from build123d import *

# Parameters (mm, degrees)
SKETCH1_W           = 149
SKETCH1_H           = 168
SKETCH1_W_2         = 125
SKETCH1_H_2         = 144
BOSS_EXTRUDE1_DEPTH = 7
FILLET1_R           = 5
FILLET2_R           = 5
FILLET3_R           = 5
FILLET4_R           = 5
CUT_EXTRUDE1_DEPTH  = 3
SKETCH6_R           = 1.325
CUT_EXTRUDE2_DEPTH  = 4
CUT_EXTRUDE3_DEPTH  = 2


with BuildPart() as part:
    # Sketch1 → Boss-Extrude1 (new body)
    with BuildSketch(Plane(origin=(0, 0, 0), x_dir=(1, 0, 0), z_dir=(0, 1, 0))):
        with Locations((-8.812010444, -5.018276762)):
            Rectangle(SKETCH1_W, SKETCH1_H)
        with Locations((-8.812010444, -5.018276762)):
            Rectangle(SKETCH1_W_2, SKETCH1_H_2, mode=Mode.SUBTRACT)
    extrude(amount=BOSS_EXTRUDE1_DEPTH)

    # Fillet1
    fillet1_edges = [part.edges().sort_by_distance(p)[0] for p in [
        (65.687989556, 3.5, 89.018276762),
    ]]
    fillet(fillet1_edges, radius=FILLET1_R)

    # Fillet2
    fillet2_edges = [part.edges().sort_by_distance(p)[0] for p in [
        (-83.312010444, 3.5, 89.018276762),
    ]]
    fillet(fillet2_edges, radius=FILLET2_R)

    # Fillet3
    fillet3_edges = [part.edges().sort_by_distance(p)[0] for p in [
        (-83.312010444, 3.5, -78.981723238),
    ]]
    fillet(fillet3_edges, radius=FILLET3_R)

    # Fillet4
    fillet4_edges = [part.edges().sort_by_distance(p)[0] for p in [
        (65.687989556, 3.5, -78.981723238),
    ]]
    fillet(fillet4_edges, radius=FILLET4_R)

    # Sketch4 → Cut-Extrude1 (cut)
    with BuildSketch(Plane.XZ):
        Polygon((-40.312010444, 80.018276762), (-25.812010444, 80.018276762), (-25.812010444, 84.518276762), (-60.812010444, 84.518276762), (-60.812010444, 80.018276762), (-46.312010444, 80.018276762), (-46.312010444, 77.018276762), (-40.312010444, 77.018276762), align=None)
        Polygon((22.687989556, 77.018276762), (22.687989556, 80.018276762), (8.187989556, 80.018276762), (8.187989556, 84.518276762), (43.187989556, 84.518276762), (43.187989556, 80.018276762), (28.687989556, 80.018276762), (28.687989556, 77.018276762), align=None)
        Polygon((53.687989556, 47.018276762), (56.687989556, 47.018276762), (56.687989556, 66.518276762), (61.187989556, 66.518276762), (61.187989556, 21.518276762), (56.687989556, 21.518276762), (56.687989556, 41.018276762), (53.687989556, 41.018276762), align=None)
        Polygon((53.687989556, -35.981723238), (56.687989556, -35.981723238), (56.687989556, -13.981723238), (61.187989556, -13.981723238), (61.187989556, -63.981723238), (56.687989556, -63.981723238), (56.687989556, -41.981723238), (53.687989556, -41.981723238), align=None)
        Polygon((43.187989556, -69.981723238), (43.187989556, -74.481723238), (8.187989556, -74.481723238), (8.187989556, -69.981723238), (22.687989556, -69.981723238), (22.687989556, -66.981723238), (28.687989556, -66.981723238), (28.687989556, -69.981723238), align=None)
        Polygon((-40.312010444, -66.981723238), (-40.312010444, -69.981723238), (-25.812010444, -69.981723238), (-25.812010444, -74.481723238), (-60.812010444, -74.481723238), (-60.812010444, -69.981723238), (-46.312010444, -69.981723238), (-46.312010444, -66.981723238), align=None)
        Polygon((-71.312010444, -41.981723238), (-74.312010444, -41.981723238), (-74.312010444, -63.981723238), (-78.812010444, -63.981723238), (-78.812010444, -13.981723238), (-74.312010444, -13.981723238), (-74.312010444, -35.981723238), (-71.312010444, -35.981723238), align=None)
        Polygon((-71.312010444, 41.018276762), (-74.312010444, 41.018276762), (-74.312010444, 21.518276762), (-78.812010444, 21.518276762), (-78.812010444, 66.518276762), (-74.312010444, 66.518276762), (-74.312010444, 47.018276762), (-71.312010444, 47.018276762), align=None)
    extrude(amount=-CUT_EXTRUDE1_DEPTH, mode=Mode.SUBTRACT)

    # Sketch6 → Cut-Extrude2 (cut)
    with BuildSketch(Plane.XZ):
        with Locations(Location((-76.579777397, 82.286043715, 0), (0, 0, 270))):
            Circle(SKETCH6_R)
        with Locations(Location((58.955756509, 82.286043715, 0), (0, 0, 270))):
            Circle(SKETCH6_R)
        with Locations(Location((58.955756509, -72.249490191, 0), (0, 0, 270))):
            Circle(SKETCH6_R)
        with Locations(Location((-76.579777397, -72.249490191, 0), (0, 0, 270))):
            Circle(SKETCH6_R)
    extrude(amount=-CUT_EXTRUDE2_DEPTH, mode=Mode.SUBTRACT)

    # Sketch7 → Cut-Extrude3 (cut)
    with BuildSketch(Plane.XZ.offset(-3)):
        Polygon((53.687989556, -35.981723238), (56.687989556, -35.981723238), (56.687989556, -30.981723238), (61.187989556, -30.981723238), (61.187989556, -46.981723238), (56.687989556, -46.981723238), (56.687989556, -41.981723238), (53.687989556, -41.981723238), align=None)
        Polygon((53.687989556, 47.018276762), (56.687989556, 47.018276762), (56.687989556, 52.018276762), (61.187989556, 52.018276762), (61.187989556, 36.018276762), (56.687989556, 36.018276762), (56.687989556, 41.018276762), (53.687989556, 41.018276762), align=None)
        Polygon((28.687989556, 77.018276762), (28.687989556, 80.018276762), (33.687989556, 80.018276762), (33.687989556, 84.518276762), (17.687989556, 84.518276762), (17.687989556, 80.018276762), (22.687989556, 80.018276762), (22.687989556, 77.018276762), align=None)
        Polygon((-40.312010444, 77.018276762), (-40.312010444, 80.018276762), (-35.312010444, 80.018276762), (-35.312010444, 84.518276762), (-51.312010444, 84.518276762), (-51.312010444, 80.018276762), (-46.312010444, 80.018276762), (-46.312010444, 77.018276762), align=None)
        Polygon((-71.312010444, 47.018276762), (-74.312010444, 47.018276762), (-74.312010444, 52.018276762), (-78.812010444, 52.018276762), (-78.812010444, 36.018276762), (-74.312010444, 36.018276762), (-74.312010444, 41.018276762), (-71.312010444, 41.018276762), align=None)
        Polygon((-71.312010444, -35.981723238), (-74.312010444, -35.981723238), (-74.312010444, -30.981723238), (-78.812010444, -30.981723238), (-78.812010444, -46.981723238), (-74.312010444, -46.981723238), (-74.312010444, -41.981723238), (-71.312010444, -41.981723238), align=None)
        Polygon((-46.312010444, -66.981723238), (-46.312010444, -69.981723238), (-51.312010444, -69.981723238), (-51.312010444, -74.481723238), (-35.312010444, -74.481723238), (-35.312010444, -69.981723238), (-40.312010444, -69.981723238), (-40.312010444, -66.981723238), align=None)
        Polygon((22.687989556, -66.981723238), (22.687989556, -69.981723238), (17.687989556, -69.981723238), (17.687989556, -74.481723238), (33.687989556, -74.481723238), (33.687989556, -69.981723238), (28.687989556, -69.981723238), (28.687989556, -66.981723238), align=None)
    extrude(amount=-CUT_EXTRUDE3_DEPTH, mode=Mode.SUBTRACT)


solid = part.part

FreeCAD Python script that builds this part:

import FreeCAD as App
import Part
import Sketcher


def edges_at(feature, points):
    """Names of the edges that pass closest to the given points."""
    edges = feature.Shape.Edges
    near = lambda p: min(range(len(edges)), key=lambda i: edges[i].distToShape(Part.Vertex(*p))[0])
    return sorted({f"Edge{near(p) + 1}" for p in points})


def add_polygon(sketch, points):
    """Adds a closed chain of lines whose ends are joined by coincident constraints."""
    first, n = sketch.GeometryCount, len(points)
    for a, b in zip(points, points[1:] + points[:1]):
        sketch.addGeometry(Part.LineSegment(App.Vector(*a, 0), App.Vector(*b, 0)), False)
    for i in range(n):
        sketch.addConstraint(Sketcher.Constraint("Coincident", first + i, 2, first + (i + 1) % n, 1))

doc = App.newDocument("Part")
params = doc.addObject("Spreadsheet::Sheet", "Params")
for row, (alias, value) in enumerate([
    ("sketch1_width", "149 mm"),
    ("sketch1_width2", "125 mm"),
    ("sketch1_height", "168 mm"),
    ("sketch1_height2", "144 mm"),
    ("pad1_length", "7 mm"),
    ("fillet_radius", "5 mm"),
    ("fillet2_radius", "5 mm"),
    ("fillet3_radius", "5 mm"),
    ("fillet4_radius", "5 mm"),
    ("sketch2_width", "35 mm"),
    ("sketch2_width2", "6 mm"),
    ("sketch2_width3", "3 mm"),
    ("sketch2_height", "45 mm"),
    ("sketch2_height2", "22 mm"),
    ("pocket1_length", "3 mm"),
    ("sketch3_diameter", "2.65 mm"),
    ("pocket2_length", "4 mm"),
    ("sketch4_width", "3 mm"),
    ("sketch4_width2", "5 mm"),
    ("sketch4_width3", "16 mm"),
    ("sketch4_width4", "4.5 mm"),
    ("pocket3_length", "2 mm"),
], start=1):
    params.set(f"A{row}", alias)
    params.set(f"B{row}", "=" + value)
    params.setAlias(f"B{row}", alias)

body = doc.addObject("PartDesign::Body", "Body")

sketch1 = body.newObject("Sketcher::SketchObject", "Sketch")
sketch1.AttachmentSupport = (doc.getObject("XZ_Plane"), [""])
sketch1.MapMode = "FlatFace"
add_polygon(sketch1, [(-83, -79), (-83, 89), (66, 89), (66, -79)])
add_polygon(sketch1, [(54, 77), (-71, 77), (-71, -67), (54, -67)])
sketch1.addConstraint([
    Sketcher.Constraint("Vertical", 0),
    Sketcher.Constraint("Horizontal", 1),
    Sketcher.Constraint("Vertical", 2),
    Sketcher.Constraint("Horizontal", 3),
    Sketcher.Constraint("Horizontal", 4),
    Sketcher.Constraint("Vertical", 5),
    Sketcher.Constraint("Horizontal", 6),
    Sketcher.Constraint("Vertical", 7),
    Sketcher.Constraint("DistanceX", 1, 1, 1, 2, 149.0),
    Sketcher.Constraint("DistanceX", 4, 2, 4, 1, 125.0),
    Sketcher.Constraint("DistanceY", 0, 1, 0, 2, 168.0),
    Sketcher.Constraint("DistanceY", 5, 2, 5, 1, 144.0),
    Sketcher.Constraint("DistanceX", 0, 2, 4, 2, 12.0),
    Sketcher.Constraint("DistanceY", 4, 2, 0, 2, 12.0),
    Sketcher.Constraint("DistanceX", 0, 2, -1, 1, 83.31201),
    Sketcher.Constraint("DistanceY", -1, 1, 0, 2, 89.018277),
])
sketch1.setExpression("Constraints[16]", "Params.sketch1_width")
sketch1.setExpression("Constraints[17]", "Params.sketch1_width2")
sketch1.setExpression("Constraints[18]", "Params.sketch1_height")
sketch1.setExpression("Constraints[19]", "Params.sketch1_height2")
pad1 = body.newObject("PartDesign::Pad", "Pad")
pad1.Profile = sketch1
pad1.setExpression("Length", "Params.pad1_length")
pad1.Reversed = True
doc.recompute()

fillet = body.newObject("PartDesign::Fillet", "Fillet")
fillet.Base = (pad1, edges_at(pad1, [(65.688, 3.5, 89.018)]))
fillet.setExpression("Radius", "Params.fillet_radius")
doc.recompute()

fillet2 = body.newObject("PartDesign::Fillet", "Fillet001")
fillet2.Base = (fillet, edges_at(fillet, [(-83.312, 3.5, 89.018)]))
fillet2.setExpression("Radius", "Params.fillet2_radius")
doc.recompute()

fillet3 = body.newObject("PartDesign::Fillet", "Fillet002")
fillet3.Base = (fillet2, edges_at(fillet2, [(-83.312, 3.5, -78.982)]))
fillet3.setExpression("Radius", "Params.fillet3_radius")
doc.recompute()

fillet4 = body.newObject("PartDesign::Fillet", "Fillet003")
fillet4.Base = (fillet3, edges_at(fillet3, [(65.688, 3.5, -78.982)]))
fillet4.setExpression("Radius", "Params.fillet4_radius")

sketch2 = body.newObject("Sketcher::SketchObject", "Sketch001")
sketch2.AttachmentSupport = (doc.getObject("XZ_Plane"), [""])
sketch2.MapMode = "FlatFace"
add_polygon(sketch2, [(-40.3, 80), (-25.8, 80), (-25.8, 84.5), (-60.8, 84.5), (-60.8, 80), (-46.3, 80), (-46.3, 77), (-40.3, 77)])
add_polygon(sketch2, [(22.7, 80), (22.7, 77), (28.7, 77), (28.7, 80), (43.2, 80), (43.2, 84.5), (8.2, 84.5), (8.2, 80)])
add_polygon(sketch2, [(56.7, 47), (53.7, 47), (53.7, 41), (56.7, 41), (56.7, 21.5), (61.2, 21.5), (61.2, 66.5), (56.7, 66.5)])
add_polygon(sketch2, [(56.7, -36), (53.7, -36), (53.7, -42), (56.7, -42), (56.7, -64), (61.2, -64), (61.2, -14), (56.7, -14)])
add_polygon(sketch2, [(43.2, -74.5), (43.2, -70), (28.7, -70), (28.7, -67), (22.7, -67), (22.7, -70), (8.2, -70), (8.2, -74.5)])
add_polygon(sketch2, [(-40.3, -70), (-40.3, -67), (-46.3, -67), (-46.3, -70), (-60.8, -70), (-60.8, -74.5), (-25.8, -74.5), (-25.8, -70)])
add_polygon(sketch2, [(-74.3, -42), (-71.3, -42), (-71.3, -36), (-74.3, -36), (-74.3, -14), (-78.8, -14), (-78.8, -64), (-74.3, -64)])
add_polygon(sketch2, [(-74.3, 41), (-71.3, 41), (-71.3, 47), (-74.3, 47), (-74.3, 66.5), (-78.8, 66.5), (-78.8, 21.5), (-74.3, 21.5)])
sketch2.addConstraint([
    Sketcher.Constraint("Horizontal", 0),
    Sketcher.Constraint("Vertical", 1),
    Sketcher.Constraint("Horizontal", 2),
    Sketcher.Constraint("Vertical", 3),
    Sketcher.Constraint("Horizontal", 4),
    Sketcher.Constraint("Vertical", 5),
    Sketcher.Constraint("Horizontal", 6),
    Sketcher.Constraint("Vertical", 7),
    Sketcher.Constraint("Vertical", 8),
    Sketcher.Constraint("Horizontal", 9),
    Sketcher.Constraint("Vertical", 10),
    Sketcher.Constraint("Horizontal", 11),
    Sketcher.Constraint("Vertical", 12),
    Sketcher.Constraint("Horizontal", 13),
    Sketcher.Constraint("Vertical", 14),
    Sketcher.Constraint("Horizontal", 15),
    Sketcher.Constraint("Horizontal", 16),
    Sketcher.Constraint("Vertical", 17),
    Sketcher.Constraint("Horizontal", 18),
    Sketcher.Constraint("Vertical", 19),
    Sketcher.Constraint("Horizontal", 20),
    Sketcher.Constraint("Vertical", 21),
    Sketcher.Constraint("Horizontal", 22),
    Sketcher.Constraint("Vertical", 23),
    Sketcher.Constraint("Horizontal", 24),
    Sketcher.Constraint("Vertical", 25),
    Sketcher.Constraint("Horizontal", 26),
    Sketcher.Constraint("Vertical", 27),
    Sketcher.Constraint("Horizontal", 28),
    Sketcher.Constraint("Vertical", 29),
    Sketcher.Constraint("Horizontal", 30),
    Sketcher.Constraint("Vertical", 31),
    Sketcher.Constraint("Vertical", 32),
    Sketcher.Constraint("Horizontal", 33),
    Sketcher.Constraint("Vertical", 34),
    Sketcher.Constraint("Horizontal", 35),
    Sketcher.Constraint("Vertical", 36),
    Sketcher.Constraint("Horizontal", 37),
    Sketcher.Constraint("Vertical", 38),
    Sketcher.Constraint("Horizontal", 39),
    Sketcher.Constraint("Vertical", 40),
    Sketcher.Constraint("Horizontal", 41),
    Sketcher.Constraint("Vertical", 42),
    Sketcher.Constraint("Horizontal", 43),
    Sketcher.Constraint("Vertical", 44),
    Sketcher.Constraint("Horizontal", 45),
    Sketcher.Constraint("Vertical", 46),
    Sketcher.Constraint("Horizontal", 47),
    Sketcher.Constraint("Horizontal", 48),
    Sketcher.Constraint("Vertical", 49),
    Sketcher.Constraint("Horizontal", 50),
    Sketcher.Constraint("Vertical", 51),
    Sketcher.Constraint("Horizontal", 52),
    Sketcher.Constraint("Vertical", 53),
    Sketcher.Constraint("Horizontal", 54),
    Sketcher.Constraint("Vertical", 55),
    Sketcher.Constraint("Horizontal", 56),
    Sketcher.Constraint("Vertical", 57),
    Sketcher.Constraint("Horizontal", 58),
    Sketcher.Constraint("Vertical", 59),
    Sketcher.Constraint("Horizontal", 60),
    Sketcher.Constraint("Vertical", 61),
    Sketcher.Constraint("Horizontal", 62),
    Sketcher.Constraint("Vertical", 63),
    Sketcher.Constraint("Horizontal", 0, 2, 3, 2),
    Sketcher.Constraint("Horizontal", 6, 2, 8, 2),
    Sketcher.Constraint("Horizontal", 7, 2, 10, 2),
    Sketcher.Constraint("Horizontal", 2, 2, 12, 2),
    Sketcher.Constraint("Horizontal", 11, 2, 14, 2),
    Sketcher.Constraint("Horizontal", 33, 2, 36, 2),
    Sketcher.Constraint("Horizontal", 35, 2, 40, 2),
    Sketcher.Constraint("Horizontal", 37, 2, 42, 2),
    Sketcher.Constraint("Horizontal", 39, 2, 44, 2),
    Sketcher.Constraint("Horizontal", 43, 2, 46, 2),
    Sketcher.Constraint("Horizontal", 26, 2, 48, 2),
    Sketcher.Constraint("Horizontal", 31, 2, 49, 2),
    Sketcher.Constraint("Horizontal", 30, 2, 51, 2),
    Sketcher.Constraint("Horizontal", 28, 2, 53, 2),
    Sketcher.Constraint("Horizontal", 18, 2, 56, 2),
    Sketcher.Constraint("Horizontal", 23, 2, 57, 2),
    Sketcher.Constraint("Horizontal", 22, 2, 59, 2),
    Sketcher.Constraint("Horizontal", 20, 2, 61, 2),
    Sketcher.Constraint("Vertical", 19, 2, 22, 2),
    Sketcher.Constraint("Vertical", 17, 2, 24, 2),
    Sketcher.Constraint("Vertical", 23, 2, 26, 2),
    Sketcher.Constraint("Vertical", 21, 2, 28, 2),
    Sketcher.Constraint("Vertical", 27, 2, 30, 2),
    Sketcher.Constraint("Vertical", 12, 2, 32, 2),
    Sketcher.Constraint("Vertical", 10, 2, 33, 2),
    Sketcher.Constraint("Vertical", 15, 2, 35, 2),
    Sketcher.Constraint("Vertical", 14, 2, 37, 2),
    Sketcher.Constraint("Vertical", 7, 2, 40, 2),
    Sketcher.Constraint("Vertical", 5, 2, 41, 2),
    Sketcher.Constraint("Vertical", 3, 2, 43, 2),
    Sketcher.Constraint("Vertical", 1, 2, 45, 2),
    Sketcher.Constraint("Vertical", 51, 2, 54, 2),
    Sketcher.Constraint("Vertical", 49, 2, 56, 2),
    Sketcher.Constraint("Vertical", 55, 2, 58, 2),
    Sketcher.Constraint("Vertical", 53, 2, 60, 2),
    Sketcher.Constraint("Vertical", 59, 2, 62, 2),
    Sketcher.Constraint("Equal", 0, 4),
    Sketcher.Constraint("Equal", 6, 9),
    Sketcher.Constraint("Equal", 4, 11),
    Sketcher.Constraint("Equal", 2, 13),
    Sketcher.Constraint("Equal", 26, 48),
    Sketcher.Constraint("Equal", 30, 52),
    Sketcher.Constraint("Equal", 62, 1),
    Sketcher.Constraint("Equal", 58, 5),
    Sketcher.Constraint("Equal", 41, 17),
    Sketcher.Constraint("Equal", 19, 23),
    Sketcher.Constraint("Equal", 17, 25),
    Sketcher.Constraint("Equal", 27, 31),
    Sketcher.Constraint("Equal", 14, 32),
    Sketcher.Constraint("Equal", 10, 34),
    Sketcher.Constraint("DistanceX", 2, 2, 2, 1, 35.0),
    Sketcher.Constraint("DistanceX", 6, 1, 6, 2, 6.0),
    Sketcher.Constraint("DistanceX", 16, 2, 16, 1, 3.0),
    Sketcher.Constraint("DistanceY", 21, 1, 21, 2, 45.0),
    Sketcher.Constraint("DistanceY", 27, 2, 27, 1, 22.0),
    Sketcher.Constraint("DistanceX", 20, 1, 20, 2, 4.5),
    Sketcher.Constraint("DistanceX", 0, 2, -1, 1, 25.81201),
    Sketcher.Constraint("DistanceX", -1, 1, 8, 2, 22.68799),
    Sketcher.Constraint("DistanceX", -1, 1, 16, 2, 53.68799),
    Sketcher.Constraint("DistanceX", 48, 2, -1, 1, 71.31201),
    Sketcher.Constraint("DistanceY", -1, 1, 0, 2, 80.018277),
    Sketcher.Constraint("DistanceY", -1, 1, 16, 2, 47.018277),
    Sketcher.Constraint("DistanceY", 24, 2, -1, 1, 35.981723),
    Sketcher.Constraint("DistanceY", 32, 2, -1, 1, 69.981723),
])
sketch2.setExpression("Constraints[178]", "Params.sketch2_width")
sketch2.setExpression("Constraints[179]", "Params.sketch2_width2")
sketch2.setExpression("Constraints[180]", "Params.sketch2_width3")
sketch2.setExpression("Constraints[181]", "Params.sketch2_height")
sketch2.setExpression("Constraints[182]", "Params.sketch2_height2")
pocket1 = body.newObject("PartDesign::Pocket", "Pocket")
pocket1.Profile = sketch2
pocket1.setExpression("Length", "Params.pocket1_length")

sketch3 = body.newObject("Sketcher::SketchObject", "Sketch002")
sketch3.AttachmentSupport = (doc.getObject("XZ_Plane"), [""])
sketch3.MapMode = "FlatFace"
sketch3.addGeometry([
    Part.Circle(App.Vector(-76.6, 82.3, 0), App.Vector(0, 0, 1), 1.3),
    Part.Circle(App.Vector(59, 82.3, 0), App.Vector(0, 0, 1), 1.3),
    Part.Circle(App.Vector(59, -72.2, 0), App.Vector(0, 0, 1), 1.3),
    Part.Circle(App.Vector(-76.6, -72.2, 0), App.Vector(0, 0, 1), 1.3),
], False)
sketch3.addConstraint([
    Sketcher.Constraint("Equal", 0, 1),
    Sketcher.Constraint("Equal", 1, 2),
    Sketcher.Constraint("Equal", 2, 3),
    Sketcher.Constraint("Horizontal", 0, 3, 1, 3),
    Sketcher.Constraint("Horizontal", 2, 3, 3, 3),
    Sketcher.Constraint("Vertical", 1, 3, 2, 3),
    Sketcher.Constraint("Vertical", 0, 3, 3, 3),
    Sketcher.Constraint("Diameter", 0, 2.65),
    Sketcher.Constraint("DistanceY", 2, 3, -1, 1, 72.24949),
    Sketcher.Constraint("DistanceX", 0, 3, -1, 1, 76.579777),
    Sketcher.Constraint("DistanceY", -1, 1, 0, 3, 82.286044),
    Sketcher.Constraint("DistanceX", -1, 1, 1, 3, 58.955757),
])
sketch3.setExpression("Constraints[7]", "Params.sketch3_diameter")
pocket2 = body.newObject("PartDesign::Pocket", "Pocket001")
pocket2.Profile = sketch3
pocket2.setExpression("Length", "Params.pocket2_length")

sketch4 = body.newObject("Sketcher::SketchObject", "Sketch003")
sketch4.AttachmentSupport = (doc.getObject("XZ_Plane"), [""])
sketch4.MapMode = "FlatFace"
sketch4.AttachmentOffset = App.Placement(App.Vector(0, 0, -3), App.Rotation())
add_polygon(sketch4, [(56.7, -36), (53.7, -36), (53.7, -42), (56.7, -42), (56.7, -47), (61.2, -47), (61.2, -31), (56.7, -31)])
add_polygon(sketch4, [(56.7, 47), (53.7, 47), (53.7, 41), (56.7, 41), (56.7, 36), (61.2, 36), (61.2, 52), (56.7, 52)])
add_polygon(sketch4, [(28.7, 77), (28.7, 80), (33.7, 80), (33.7, 84.5), (17.7, 84.5), (17.7, 80), (22.7, 80), (22.7, 77)])
add_polygon(sketch4, [(-40.3, 77), (-40.3, 80), (-35.3, 80), (-35.3, 84.5), (-51.3, 84.5), (-51.3, 80), (-46.3, 80), (-46.3, 77)])
add_polygon(sketch4, [(-71.3, 47), (-74.3, 47), (-74.3, 52), (-78.8, 52), (-78.8, 36), (-74.3, 36), (-74.3, 41), (-71.3, 41)])
add_polygon(sketch4, [(-71.3, -36), (-74.3, -36), (-74.3, -31), (-78.8, -31), (-78.8, -47), (-74.3, -47), (-74.3, -42), (-71.3, -42)])
add_polygon(sketch4, [(-46.3, -67), (-46.3, -70), (-51.3, -70), (-51.3, -74.5), (-35.3, -74.5), (-35.3, -70), (-40.3, -70), (-40.3, -67)])
add_polygon(sketch4, [(22.7, -67), (22.7, -70), (17.7, -70), (17.7, -74.5), (33.7, -74.5), (33.7, -70), (28.7, -70), (28.7, -67)])
sketch4.addConstraint([
    Sketcher.Constraint("Horizontal", 0),
    Sketcher.Constraint("Vertical", 1),
    Sketcher.Constraint("Horizontal", 2),
    Sketcher.Constraint("Vertical", 3),
    Sketcher.Constraint("Horizontal", 4),
    Sketcher.Constraint("Vertical", 5),
    Sketcher.Constraint("Horizontal", 6),
    Sketcher.Constraint("Vertical", 7),
    Sketcher.Constraint("Horizontal", 8),
    Sketcher.Constraint("Vertical", 9),
    Sketcher.Constraint("Horizontal", 10),
    Sketcher.Constraint("Vertical", 11),
    Sketcher.Constraint("Horizontal", 12),
    Sketcher.Constraint("Vertical", 13),
    Sketcher.Constraint("Horizontal", 14),
    Sketcher.Constraint("Vertical", 15),
    Sketcher.Constraint("Vertical", 16),
    Sketcher.Constraint("Horizontal", 17),
    Sketcher.Constraint("Vertical", 18),
    Sketcher.Constraint("Horizontal", 19),
    Sketcher.Constraint("Vertical", 20),
    Sketcher.Constraint("Horizontal", 21),
    Sketcher.Constraint("Vertical", 22),
    Sketcher.Constraint("Horizontal", 23),
    Sketcher.Constraint("Vertical", 24),
    Sketcher.Constraint("Horizontal", 25),
    Sketcher.Constraint("Vertical", 26),
    Sketcher.Constraint("Horizontal", 27),
    Sketcher.Constraint("Vertical", 28),
    Sketcher.Constraint("Horizontal", 29),
    Sketcher.Constraint("Vertical", 30),
    Sketcher.Constraint("Horizontal", 31),
    Sketcher.Constraint("Horizontal", 32),
    Sketcher.Constraint("Vertical", 33),
    Sketcher.Constraint("Horizontal", 34),
    Sketcher.Constraint("Vertical", 35),
    Sketcher.Constraint("Horizontal", 36),
    Sketcher.Constraint("Vertical", 37),
    Sketcher.Constraint("Horizontal", 38),
    Sketcher.Constraint("Vertical", 39),
    Sketcher.Constraint("Horizontal", 40),
    Sketcher.Constraint("Vertical", 41),
    Sketcher.Constraint("Horizontal", 42),
    Sketcher.Constraint("Vertical", 43),
    Sketcher.Constraint("Horizontal", 44),
    Sketcher.Constraint("Vertical", 45),
    Sketcher.Constraint("Horizontal", 46),
    Sketcher.Constraint("Vertical", 47),
    Sketcher.Constraint("Vertical", 48),
    Sketcher.Constraint("Horizontal", 49),
    Sketcher.Constraint("Vertical", 50),
    Sketcher.Constraint("Horizontal", 51),
    Sketcher.Constraint("Vertical", 52),
    Sketcher.Constraint("Horizontal", 53),
    Sketcher.Constraint("Vertical", 54),
    Sketcher.Constraint("Horizontal", 55),
    Sketcher.Constraint("Vertical", 56),
    Sketcher.Constraint("Horizontal", 57),
    Sketcher.Constraint("Vertical", 58),
    Sketcher.Constraint("Horizontal", 59),
    Sketcher.Constraint("Vertical", 60),
    Sketcher.Constraint("Horizontal", 61),
    Sketcher.Constraint("Vertical", 62),
    Sketcher.Constraint("Horizontal", 63),
    Sketcher.Constraint("Horizontal", 17, 2, 20, 2),
    Sketcher.Constraint("Horizontal", 21, 2, 24, 2),
    Sketcher.Constraint("Horizontal", 19, 2, 26, 2),
    Sketcher.Constraint("Horizontal", 25, 2, 28, 2),
    Sketcher.Constraint("Horizontal", 23, 2, 30, 2),
    Sketcher.Constraint("Horizontal", 15, 2, 32, 2),
    Sketcher.Constraint("Horizontal", 14, 2, 33, 2),
    Sketcher.Constraint("Horizontal", 12, 2, 35, 2),
    Sketcher.Constraint("Horizontal", 10, 2, 37, 2),
    Sketcher.Constraint("Horizontal", 7, 2, 40, 2),
    Sketcher.Constraint("Horizontal", 6, 2, 41, 2),
    Sketcher.Constraint("Horizontal", 4, 2, 43, 2),
    Sketcher.Constraint("Horizontal", 2, 2, 45, 2),
    Sketcher.Constraint("Horizontal", 49, 2, 52, 2),
    Sketcher.Constraint("Horizontal", 53, 2, 56, 2),
    Sketcher.Constraint("Horizontal", 51, 2, 58, 2),
    Sketcher.Constraint("Horizontal", 57, 2, 60, 2),
    Sketcher.Constraint("Horizontal", 55, 2, 62, 2),
    Sketcher.Constraint("Vertical", 3, 2, 6, 2),
    Sketcher.Constraint("Vertical", 1, 2, 8, 2),
    Sketcher.Constraint("Vertical", 7, 2, 10, 2),
    Sketcher.Constraint("Vertical", 5, 2, 12, 2),
    Sketcher.Constraint("Vertical", 11, 2, 14, 2),
    Sketcher.Constraint("Vertical", 33, 2, 36, 2),
    Sketcher.Constraint("Vertical", 37, 2, 40, 2),
    Sketcher.Constraint("Vertical", 35, 2, 42, 2),
    Sketcher.Constraint("Vertical", 41, 2, 44, 2),
    Sketcher.Constraint("Vertical", 39, 2, 46, 2),
    Sketcher.Constraint("Vertical", 30, 2, 48, 2),
    Sketcher.Constraint("Vertical", 28, 2, 49, 2),
    Sketcher.Constraint("Vertical", 26, 2, 51, 2),
    Sketcher.Constraint("Vertical", 31, 2, 53, 2),
    Sketcher.Constraint("Vertical", 22, 2, 56, 2),
    Sketcher.Constraint("Vertical", 20, 2, 57, 2),
    Sketcher.Constraint("Vertical", 18, 2, 59, 2),
    Sketcher.Constraint("Vertical", 23, 2, 61, 2),
    Sketcher.Constraint("Equal", 17, 21),
    Sketcher.Constraint("Equal", 21, 25),
    Sketcher.Constraint("Equal", 19, 27),
    Sketcher.Constraint("Equal", 25, 29),
    Sketcher.Constraint("Equal", 10, 32),
    Sketcher.Constraint("Equal", 14, 34),
    Sketcher.Constraint("Equal", 63, 1),
    Sketcher.Constraint("Equal", 61, 3),
    Sketcher.Constraint("Equal", 59, 5),
    Sketcher.Constraint("Equal", 1, 9),
    Sketcher.Constraint("Equal", 7, 11),
    Sketcher.Constraint("Equal", 5, 13),
    Sketcher.Constraint("Equal", 46, 16),
    Sketcher.Constraint("Equal", 44, 18),
    Sketcher.Constraint("Equal", 30, 48),
    Sketcher.Constraint("Equal", 28, 50),
    Sketcher.Constraint("DistanceX", 0, 2, 0, 1, 3.0),
    Sketcher.Constraint("DistanceX", 17, 1, 17, 2, 5.0),
    Sketcher.Constraint("DistanceX", 19, 2, 19, 1, 16.0),
    Sketcher.Constraint("DistanceX", 4, 1, 4, 2, 4.5),
    Sketcher.Constraint("DistanceX", -1, 1, 0, 2, 53.68799),
    Sketcher.Constraint("DistanceX", -1, 1, 16, 2, 28.68799),
    Sketcher.Constraint("DistanceX", 24, 2, -1, 1, 40.31201),
    Sketcher.Constraint("DistanceX", 32, 2, -1, 1, 74.31201),
    Sketcher.Constraint("DistanceY", 0, 2, -1, 1, 35.981723),
    Sketcher.Constraint("DistanceY", -1, 1, 8, 2, 47.018277),
    Sketcher.Constraint("DistanceY", -1, 1, 16, 2, 80.018277),
    Sketcher.Constraint("DistanceY", 48, 2, -1, 1, 69.981723),
])
sketch4.setExpression("Constraints[180]", "Params.sketch4_width")
sketch4.setExpression("Constraints[181]", "Params.sketch4_width2")
sketch4.setExpression("Constraints[182]", "Params.sketch4_width3")
sketch4.setExpression("Constraints[183]", "Params.sketch4_width4")
pocket3 = body.newObject("PartDesign::Pocket", "Pocket002")
pocket3.Profile = sketch4
pocket3.setExpression("Length", "Params.pocket3_length")

doc.recompute()
